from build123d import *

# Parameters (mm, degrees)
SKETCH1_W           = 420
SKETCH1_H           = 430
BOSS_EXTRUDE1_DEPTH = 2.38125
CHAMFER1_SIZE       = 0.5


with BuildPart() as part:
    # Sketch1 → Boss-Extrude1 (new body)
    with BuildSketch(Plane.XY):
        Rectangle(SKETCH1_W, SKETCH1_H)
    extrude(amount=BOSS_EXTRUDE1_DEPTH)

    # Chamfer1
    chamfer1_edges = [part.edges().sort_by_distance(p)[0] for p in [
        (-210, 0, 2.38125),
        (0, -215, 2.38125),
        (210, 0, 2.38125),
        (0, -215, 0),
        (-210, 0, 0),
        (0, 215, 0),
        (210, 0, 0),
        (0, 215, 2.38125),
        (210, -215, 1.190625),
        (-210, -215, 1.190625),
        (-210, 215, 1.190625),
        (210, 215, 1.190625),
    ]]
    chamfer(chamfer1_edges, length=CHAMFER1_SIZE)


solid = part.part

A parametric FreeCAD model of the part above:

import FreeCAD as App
import Part
import Sketcher

V = App.Vector

doc = App.newDocument("Part")
body = doc.addObject("PartDesign::Body", "Body")

# Sketch on XY plane
sketch1 = body.newObject("Sketcher::SketchObject", "Sketch")
sketch1.AttachmentSupport = (doc.getObject("XY_Plane"), [""])
sketch1.MapMode = "FlatFace"
sketch1.addGeometry([
    Part.LineSegment(V(-210, 215, 0), V(-210, -215, 0)),
    Part.LineSegment(V(-210, -215, 0), V(210, -215, 0)),
    Part.LineSegment(V(210, -215, 0), V(210, 215, 0)),
    Part.LineSegment(V(210, 215, 0), V(-210, 215, 0)),
], False)
sketch1.addConstraint([
    Sketcher.Constraint("Coincident", 0, 2, 1, 1),
    Sketcher.Constraint("Coincident", 1, 2, 2, 1),
    Sketcher.Constraint("Coincident", 2, 2, 3, 1),
    Sketcher.Constraint("Coincident", 3, 2, 0, 1),
    Sketcher.Constraint("Vertical", 0),
    Sketcher.Constraint("Horizontal", 1),
    Sketcher.Constraint("Vertical", 2),
    Sketcher.Constraint("Horizontal", 3),
    Sketcher.Constraint("Symmetric", 0, 2, 2, 2, -1, 1),
    Sketcher.Constraint("DistanceX", 1, 1, 1, 2, 420.0),
    Sketcher.Constraint("DistanceY", 0, 2, 0, 1, 430.0),
])
pad1 = body.newObject("PartDesign::Pad", "Pad")
pad1.Profile = sketch1
pad1.Length = 2.38125
doc.recompute()

chamfer = body.newObject("PartDesign::Chamfer", "Chamfer")
chamfer.Base = (pad1, ["Edge1"])
chamfer.UseAllEdges = True
chamfer.Size = 0.5

doc.recompute()
